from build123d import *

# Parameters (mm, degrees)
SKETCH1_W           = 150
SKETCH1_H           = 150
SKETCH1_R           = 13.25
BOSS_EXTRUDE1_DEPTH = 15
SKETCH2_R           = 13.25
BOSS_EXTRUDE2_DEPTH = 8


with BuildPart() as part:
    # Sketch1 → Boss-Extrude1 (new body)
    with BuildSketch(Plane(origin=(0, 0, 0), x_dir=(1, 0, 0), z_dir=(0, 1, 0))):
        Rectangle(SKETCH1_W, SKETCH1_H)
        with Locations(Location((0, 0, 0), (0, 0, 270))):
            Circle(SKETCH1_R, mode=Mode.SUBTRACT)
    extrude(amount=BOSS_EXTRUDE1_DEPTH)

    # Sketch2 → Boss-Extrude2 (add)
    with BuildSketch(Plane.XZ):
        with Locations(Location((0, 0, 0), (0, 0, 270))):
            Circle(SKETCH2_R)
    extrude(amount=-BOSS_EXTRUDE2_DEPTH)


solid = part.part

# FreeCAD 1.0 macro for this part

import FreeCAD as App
import Part
import Sketcher


def add_polygon(sketch, points):
    """Adds a closed chain of lines whose ends are joined by coincident constraints."""
    first, n = sketch.GeometryCount, len(points)
    for a, b in zip(points, points[1:] + points[:1]):
        sketch.addGeometry(Part.LineSegment(App.Vector(*a, 0), App.Vector(*b, 0)), False)
    for i in range(n):
        sketch.addConstraint(Sketcher.Constraint("Coincident", first + i, 2, first + (i + 1) % n, 1))

doc = App.newDocument("Part")
body = doc.addObject("PartDesign::Body", "Body")

sketch1 = body.newObject("Sketcher::SketchObject", "Sketch")
sketch1.AttachmentSupport = (doc.getObject("XZ_Plane"), [""])
sketch1.MapMode = "FlatFace"
add_polygon(sketch1, [(-75, -75), (-75, 75), (75, 75), (75, -75)])
sketch1.addGeometry(Part.Circle(App.Vector(0, 0, 0), App.Vector(0, 0, 1), 13), False)
sketch1.addConstraint([
    Sketcher.Constraint("Vertical", 0),
    Sketcher.Constraint("Horizontal", 1),
    Sketcher.Constraint("Vertical", 2),
    Sketcher.Constraint("Horizontal", 3),
    Sketcher.Constraint("Coincident", 4, 3, -1, 1),
    Sketcher.Constraint("Symmetric", 0, 2, 2, 2, -1, 1),
    Sketcher.Constraint("Equal", 3, 0),
    Sketcher.Constraint("Diameter", 4, 26.5),
    Sketcher.Constraint("DistanceX", 1, 1, 1, 2, 150.0),
])
pad1 = body.newObject("PartDesign::Pad", "Pad")
pad1.Profile = sketch1
pad1.Length = 15
pad1.Reversed = True

sketch2 = body.newObject("Sketcher::SketchObject", "Sketch001")
sketch2.AttachmentSupport = (doc.getObject("XZ_Plane"), [""])
sketch2.MapMode = "FlatFace"
sketch2.addGeometry(Part.Circle(App.Vector(0, 0, 0), App.Vector(0, 0, 1), 13), False)
sketch2.addConstraint([
    Sketcher.Constraint("Coincident", 0, 3, -1, 1),
    Sketcher.Constraint("Diameter", 0, 26.5),
])
pad2 = body.newObject("PartDesign::Pad", "Pad001")
pad2.Profile = sketch2
pad2.Length = 8
pad2.Reversed = True

doc.recompute()
